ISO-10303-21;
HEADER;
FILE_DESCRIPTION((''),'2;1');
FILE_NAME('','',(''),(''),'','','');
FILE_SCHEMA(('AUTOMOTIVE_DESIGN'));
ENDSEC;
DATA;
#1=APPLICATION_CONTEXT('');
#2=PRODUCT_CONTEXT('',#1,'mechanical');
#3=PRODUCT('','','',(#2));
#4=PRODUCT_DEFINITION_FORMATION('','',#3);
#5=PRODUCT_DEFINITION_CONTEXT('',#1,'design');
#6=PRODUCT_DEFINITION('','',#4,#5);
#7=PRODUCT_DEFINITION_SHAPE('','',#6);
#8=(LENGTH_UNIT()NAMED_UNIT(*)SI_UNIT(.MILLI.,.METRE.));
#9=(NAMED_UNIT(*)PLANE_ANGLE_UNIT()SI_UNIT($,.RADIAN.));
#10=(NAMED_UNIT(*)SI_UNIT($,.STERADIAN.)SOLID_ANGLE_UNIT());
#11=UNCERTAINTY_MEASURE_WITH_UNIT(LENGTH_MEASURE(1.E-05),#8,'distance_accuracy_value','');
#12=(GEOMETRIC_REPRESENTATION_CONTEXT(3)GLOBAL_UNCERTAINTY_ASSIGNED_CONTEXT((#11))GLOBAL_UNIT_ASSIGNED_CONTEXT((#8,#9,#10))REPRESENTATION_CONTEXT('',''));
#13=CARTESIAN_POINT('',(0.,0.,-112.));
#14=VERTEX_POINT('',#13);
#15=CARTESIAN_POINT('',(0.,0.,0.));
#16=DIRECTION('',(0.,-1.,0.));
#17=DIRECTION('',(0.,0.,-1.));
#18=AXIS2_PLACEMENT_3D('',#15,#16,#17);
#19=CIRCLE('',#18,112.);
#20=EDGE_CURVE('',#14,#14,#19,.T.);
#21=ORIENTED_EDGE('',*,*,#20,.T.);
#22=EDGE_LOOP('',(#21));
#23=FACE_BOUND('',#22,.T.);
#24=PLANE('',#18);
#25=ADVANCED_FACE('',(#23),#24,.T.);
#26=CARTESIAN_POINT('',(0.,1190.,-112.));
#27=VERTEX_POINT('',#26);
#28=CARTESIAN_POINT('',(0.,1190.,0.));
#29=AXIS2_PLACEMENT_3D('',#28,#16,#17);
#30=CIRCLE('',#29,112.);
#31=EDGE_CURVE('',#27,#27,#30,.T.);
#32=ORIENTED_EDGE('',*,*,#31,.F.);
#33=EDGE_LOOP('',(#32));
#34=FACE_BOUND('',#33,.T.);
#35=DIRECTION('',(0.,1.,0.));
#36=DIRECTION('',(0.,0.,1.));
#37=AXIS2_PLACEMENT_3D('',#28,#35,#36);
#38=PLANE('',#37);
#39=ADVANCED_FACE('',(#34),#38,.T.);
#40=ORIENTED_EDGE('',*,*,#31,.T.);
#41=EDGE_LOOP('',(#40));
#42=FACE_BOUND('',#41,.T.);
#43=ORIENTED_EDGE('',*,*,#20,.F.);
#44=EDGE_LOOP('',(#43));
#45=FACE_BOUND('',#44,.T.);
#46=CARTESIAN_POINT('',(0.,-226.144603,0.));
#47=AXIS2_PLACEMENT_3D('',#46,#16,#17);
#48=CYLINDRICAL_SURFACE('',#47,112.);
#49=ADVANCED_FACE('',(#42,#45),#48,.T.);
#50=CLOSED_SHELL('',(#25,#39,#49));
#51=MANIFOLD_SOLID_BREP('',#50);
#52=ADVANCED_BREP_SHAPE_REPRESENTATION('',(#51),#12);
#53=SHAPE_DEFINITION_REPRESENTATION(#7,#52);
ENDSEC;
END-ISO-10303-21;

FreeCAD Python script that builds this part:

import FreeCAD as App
import Part
import Sketcher

V = App.Vector


def add_polygon(sketch, points):
    """Adds a closed chain of lines whose ends are joined by coincident constraints."""
    first, n = sketch.GeometryCount, len(points)
    for a, b in zip(points, points[1:] + points[:1]):
        sketch.addGeometry(Part.LineSegment(App.Vector(*a, 0), App.Vector(*b, 0)), False)
    for i in range(n):
        sketch.addConstraint(Sketcher.Constraint("Coincident", first + i, 2, first + (i + 1) % n, 1))

doc = App.newDocument("Part")
body = doc.addObject("PartDesign::Body", "Body")

sketch1 = body.newObject("Sketcher::SketchObject", "Sketch")
sketch1.AttachmentSupport = (doc.getObject("XY_Plane"), [""])
sketch1.MapMode = "FlatFace"
add_polygon(sketch1, [(0, 1190), (0, 0), (112, 0), (112, 1190)])
sketch1.addConstraint([
    Sketcher.Constraint("Vertical", 0),
    Sketcher.Constraint("Horizontal", 1),
    Sketcher.Constraint("Vertical", 2),
    Sketcher.Constraint("Horizontal", 3),
    Sketcher.Constraint("Coincident", 0, 2, -1, 1),
    Sketcher.Constraint("DistanceX", 1, 1, 1, 2, 112.0),
    Sketcher.Constraint("DistanceY", 0, 2, 0, 1, 1190.0),
])
revolution = body.newObject("PartDesign::Revolution", "Revolution")
revolution.Profile = sketch1
revolution.ReferenceAxis = (sketch1, ["V_Axis"])
revolution.Angle = 360

doc.recompute()
